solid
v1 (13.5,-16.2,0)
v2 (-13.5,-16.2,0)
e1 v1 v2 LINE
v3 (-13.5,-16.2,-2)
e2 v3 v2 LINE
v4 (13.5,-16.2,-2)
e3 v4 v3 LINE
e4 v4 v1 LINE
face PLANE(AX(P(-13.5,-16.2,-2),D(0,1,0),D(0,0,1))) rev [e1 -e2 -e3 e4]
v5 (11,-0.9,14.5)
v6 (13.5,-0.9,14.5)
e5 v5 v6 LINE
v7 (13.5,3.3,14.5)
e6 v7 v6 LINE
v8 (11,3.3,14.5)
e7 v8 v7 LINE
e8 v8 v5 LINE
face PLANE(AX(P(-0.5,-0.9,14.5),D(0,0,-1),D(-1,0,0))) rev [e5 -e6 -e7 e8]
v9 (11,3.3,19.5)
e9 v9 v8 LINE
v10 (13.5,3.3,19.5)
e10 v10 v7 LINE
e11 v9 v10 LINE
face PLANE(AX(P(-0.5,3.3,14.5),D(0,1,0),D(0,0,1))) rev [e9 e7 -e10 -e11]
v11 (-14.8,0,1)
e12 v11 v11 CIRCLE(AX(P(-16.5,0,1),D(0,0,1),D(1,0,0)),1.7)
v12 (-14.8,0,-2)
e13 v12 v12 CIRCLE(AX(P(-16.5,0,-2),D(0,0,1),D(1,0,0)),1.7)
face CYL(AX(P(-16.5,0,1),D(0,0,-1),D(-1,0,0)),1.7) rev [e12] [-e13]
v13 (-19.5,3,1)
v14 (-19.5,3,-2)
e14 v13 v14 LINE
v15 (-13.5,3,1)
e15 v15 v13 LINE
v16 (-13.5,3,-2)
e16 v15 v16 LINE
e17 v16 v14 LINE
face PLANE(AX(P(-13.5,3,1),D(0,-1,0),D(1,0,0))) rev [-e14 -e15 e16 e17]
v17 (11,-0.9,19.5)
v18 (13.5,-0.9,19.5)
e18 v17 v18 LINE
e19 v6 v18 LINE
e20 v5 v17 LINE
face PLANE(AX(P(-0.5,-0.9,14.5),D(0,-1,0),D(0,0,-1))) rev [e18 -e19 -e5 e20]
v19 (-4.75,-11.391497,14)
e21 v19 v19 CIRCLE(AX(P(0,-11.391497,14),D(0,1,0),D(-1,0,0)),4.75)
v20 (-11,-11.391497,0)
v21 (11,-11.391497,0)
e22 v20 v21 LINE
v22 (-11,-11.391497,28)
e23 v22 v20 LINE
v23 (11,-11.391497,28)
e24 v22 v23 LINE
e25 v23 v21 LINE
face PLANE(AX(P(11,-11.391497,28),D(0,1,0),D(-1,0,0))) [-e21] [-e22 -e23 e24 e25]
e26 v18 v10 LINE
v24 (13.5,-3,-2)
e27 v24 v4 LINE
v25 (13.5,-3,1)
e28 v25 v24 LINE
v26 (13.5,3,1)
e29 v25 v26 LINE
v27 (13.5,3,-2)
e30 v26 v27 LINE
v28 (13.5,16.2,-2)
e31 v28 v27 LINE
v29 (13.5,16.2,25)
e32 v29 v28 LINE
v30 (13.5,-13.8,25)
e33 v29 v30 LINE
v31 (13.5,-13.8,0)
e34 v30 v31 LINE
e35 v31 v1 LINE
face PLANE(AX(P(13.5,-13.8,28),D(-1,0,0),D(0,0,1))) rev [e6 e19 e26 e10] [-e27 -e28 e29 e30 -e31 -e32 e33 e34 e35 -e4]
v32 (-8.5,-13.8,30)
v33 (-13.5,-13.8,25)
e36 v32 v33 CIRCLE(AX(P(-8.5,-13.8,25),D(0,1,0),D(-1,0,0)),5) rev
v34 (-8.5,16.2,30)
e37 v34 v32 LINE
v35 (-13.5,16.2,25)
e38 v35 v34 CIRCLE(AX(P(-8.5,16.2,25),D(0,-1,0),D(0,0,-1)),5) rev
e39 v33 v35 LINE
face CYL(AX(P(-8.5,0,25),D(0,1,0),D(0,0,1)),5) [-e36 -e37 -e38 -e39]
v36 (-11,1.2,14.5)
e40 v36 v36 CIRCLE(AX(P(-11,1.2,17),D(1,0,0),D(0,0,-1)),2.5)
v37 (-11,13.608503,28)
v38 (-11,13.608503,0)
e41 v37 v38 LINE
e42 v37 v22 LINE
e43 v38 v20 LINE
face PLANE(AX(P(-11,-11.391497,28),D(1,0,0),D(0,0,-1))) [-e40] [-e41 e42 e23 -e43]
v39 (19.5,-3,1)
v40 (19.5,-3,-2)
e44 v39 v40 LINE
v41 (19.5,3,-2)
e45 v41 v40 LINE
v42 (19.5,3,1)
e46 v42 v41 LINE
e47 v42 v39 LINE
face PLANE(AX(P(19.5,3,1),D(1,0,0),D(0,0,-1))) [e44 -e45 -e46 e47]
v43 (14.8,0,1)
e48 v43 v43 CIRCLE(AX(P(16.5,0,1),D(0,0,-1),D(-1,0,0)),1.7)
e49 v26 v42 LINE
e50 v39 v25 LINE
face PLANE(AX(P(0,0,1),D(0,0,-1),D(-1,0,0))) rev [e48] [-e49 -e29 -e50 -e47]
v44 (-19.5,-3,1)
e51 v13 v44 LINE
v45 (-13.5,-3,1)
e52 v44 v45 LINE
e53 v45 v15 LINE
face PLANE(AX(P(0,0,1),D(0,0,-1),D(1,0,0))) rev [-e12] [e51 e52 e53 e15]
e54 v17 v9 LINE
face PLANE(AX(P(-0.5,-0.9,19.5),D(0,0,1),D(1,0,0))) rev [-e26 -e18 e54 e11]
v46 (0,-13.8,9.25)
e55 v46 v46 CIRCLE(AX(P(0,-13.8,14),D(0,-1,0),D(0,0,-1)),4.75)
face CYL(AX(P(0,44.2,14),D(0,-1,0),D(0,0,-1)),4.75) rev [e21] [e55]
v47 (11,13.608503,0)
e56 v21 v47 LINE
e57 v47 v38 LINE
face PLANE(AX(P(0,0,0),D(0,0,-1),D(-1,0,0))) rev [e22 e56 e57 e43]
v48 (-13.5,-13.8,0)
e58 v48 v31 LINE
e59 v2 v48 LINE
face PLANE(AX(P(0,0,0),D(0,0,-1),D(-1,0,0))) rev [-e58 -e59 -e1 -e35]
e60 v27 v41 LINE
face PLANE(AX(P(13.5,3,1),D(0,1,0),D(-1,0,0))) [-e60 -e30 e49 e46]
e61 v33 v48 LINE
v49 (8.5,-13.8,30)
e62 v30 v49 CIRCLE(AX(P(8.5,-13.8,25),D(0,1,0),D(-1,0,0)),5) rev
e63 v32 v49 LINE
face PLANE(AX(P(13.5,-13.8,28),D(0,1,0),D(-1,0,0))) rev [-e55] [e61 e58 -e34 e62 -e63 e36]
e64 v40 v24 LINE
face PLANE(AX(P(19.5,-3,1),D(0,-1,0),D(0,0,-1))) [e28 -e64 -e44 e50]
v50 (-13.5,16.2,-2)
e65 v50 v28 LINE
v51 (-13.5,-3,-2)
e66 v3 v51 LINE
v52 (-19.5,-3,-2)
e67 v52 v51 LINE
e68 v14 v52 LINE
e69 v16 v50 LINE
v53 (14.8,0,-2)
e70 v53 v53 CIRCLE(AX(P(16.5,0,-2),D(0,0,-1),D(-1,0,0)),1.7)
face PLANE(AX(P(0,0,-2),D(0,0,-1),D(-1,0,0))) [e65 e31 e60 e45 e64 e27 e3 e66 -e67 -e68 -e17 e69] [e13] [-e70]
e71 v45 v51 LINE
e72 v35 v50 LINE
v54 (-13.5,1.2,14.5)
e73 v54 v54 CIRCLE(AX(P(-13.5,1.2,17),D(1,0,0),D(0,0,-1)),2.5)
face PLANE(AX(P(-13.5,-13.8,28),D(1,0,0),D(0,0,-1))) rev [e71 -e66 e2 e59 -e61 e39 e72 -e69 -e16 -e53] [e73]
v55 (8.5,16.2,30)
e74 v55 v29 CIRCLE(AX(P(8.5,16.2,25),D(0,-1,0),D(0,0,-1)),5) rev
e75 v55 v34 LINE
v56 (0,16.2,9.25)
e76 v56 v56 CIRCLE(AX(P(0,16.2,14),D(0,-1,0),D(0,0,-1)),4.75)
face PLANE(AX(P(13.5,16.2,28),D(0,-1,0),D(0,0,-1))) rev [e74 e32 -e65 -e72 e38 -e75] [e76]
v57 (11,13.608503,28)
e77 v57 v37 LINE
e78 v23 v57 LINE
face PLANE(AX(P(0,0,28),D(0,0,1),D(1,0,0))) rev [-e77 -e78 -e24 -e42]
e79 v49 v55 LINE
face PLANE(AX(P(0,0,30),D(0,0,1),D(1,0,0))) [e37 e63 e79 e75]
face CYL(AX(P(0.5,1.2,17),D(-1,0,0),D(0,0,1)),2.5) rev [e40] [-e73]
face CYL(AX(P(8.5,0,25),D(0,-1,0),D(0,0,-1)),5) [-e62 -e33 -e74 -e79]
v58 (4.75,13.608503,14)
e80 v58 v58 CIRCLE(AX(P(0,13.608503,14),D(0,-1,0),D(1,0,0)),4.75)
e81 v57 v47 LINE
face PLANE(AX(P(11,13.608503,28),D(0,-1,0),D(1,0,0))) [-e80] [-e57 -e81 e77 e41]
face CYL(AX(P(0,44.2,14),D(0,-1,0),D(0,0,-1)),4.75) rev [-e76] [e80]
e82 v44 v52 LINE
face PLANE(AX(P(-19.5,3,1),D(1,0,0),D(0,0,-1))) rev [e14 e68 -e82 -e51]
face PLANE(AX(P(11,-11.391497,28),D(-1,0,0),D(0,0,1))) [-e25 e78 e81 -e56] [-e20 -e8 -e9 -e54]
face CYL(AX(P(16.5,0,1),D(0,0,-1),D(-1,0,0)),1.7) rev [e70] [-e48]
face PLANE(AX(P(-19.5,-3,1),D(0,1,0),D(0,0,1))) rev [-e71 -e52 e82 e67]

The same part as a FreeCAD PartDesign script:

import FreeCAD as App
import Part
import Sketcher
from FreeCAD import Vector
Q = App.Units.Quantity


def edges_at(feature, points):
    """Names of the edges that pass closest to the given points."""
    edges = feature.Shape.Edges
    near = lambda p: min(range(len(edges)), key=lambda i: edges[i].distToShape(Part.Vertex(*p))[0])
    return sorted({f"Edge{near(p) + 1}" for p in points})


def add_polygon(sketch, points):
    """Adds a closed chain of lines whose ends are joined by coincident constraints."""
    first, n = sketch.GeometryCount, len(points)
    for a, b in zip(points, points[1:] + points[:1]):
        sketch.addGeometry(Part.LineSegment(App.Vector(*a, 0), App.Vector(*b, 0)), False)
    for i in range(n):
        sketch.addConstraint(Sketcher.Constraint("Coincident", first + i, 2, first + (i + 1) % n, 1))

doc = App.newDocument("Part")
params = doc.addObject("Spreadsheet::Sheet", "Params")
for row, (alias, value) in enumerate([
    ("sketch1_width", "27 mm"),
    ("sketch1_width2", "22 mm"),
    ("sketch1_height", "30 mm"),
    ("sketch1_height2", "25 mm"),
    ("pad1_length", "28 mm"),
    ("sketch2_diameter", "5 mm"),
    ("pocket1_length", "28 mm"),
    ("sketch3_height", "5 mm"),
    ("sketch3_width", "4.2 mm"),
    ("pocket2_length", "28 mm"),
    ("sketch4_diameter", "9.5 mm"),
    ("pocket3_length", "58 mm"),
    ("sketch5_width", "27 mm"),
    ("sketch5_height", "30 mm"),
    ("pad2_length", "2 mm"),
    ("sketch6_width", "27 mm"),
    ("sketch6_height", "32.4 mm"),
    ("pad3_length", "2 mm"),
    ("sketch7_diameter", "3.4 mm"),
    ("sketch7_width", "6 mm"),
    ("pad4_length", "3 mm"),
    ("fillet_radius", "5 mm"),
], start=1):
    params.set(f"A{row}", alias)
    params.set(f"B{row}", "=" + value)
    params.setAlias(f"B{row}", alias)

body = doc.addObject("PartDesign::Body", "Body")

# Sketch on XY plane
sketch1 = body.newObject("Sketcher::SketchObject", "Sketch")
sketch1.AttachmentSupport = (doc.getObject("XY_Plane"), [""])
sketch1.MapMode = "FlatFace"
add_polygon(sketch1, [(-14, 16), (-14, -14), (14, -14), (14, 16)])  # lines 0-3
add_polygon(sketch1, [(11, -11), (-11, -11), (-11, 14), (11, 14)])  # lines 4-7
sketch1.addConstraint(Sketcher.Constraint("Vertical", 0))
sketch1.addConstraint(Sketcher.Constraint("Horizontal", 1))
sketch1.addConstraint(Sketcher.Constraint("Vertical", 2))
sketch1.addConstraint(Sketcher.Constraint("Horizontal", 3))
sketch1.addConstraint(Sketcher.Constraint("Horizontal", 4))
sketch1.addConstraint(Sketcher.Constraint("Vertical", 5))
sketch1.addConstraint(Sketcher.Constraint("Horizontal", 6))
sketch1.addConstraint(Sketcher.Constraint("Vertical", 7))
sketch1.addConstraint(Sketcher.Constraint("DistanceX", 1, 1, 1, 2, Q("27 mm")))
sketch1.addConstraint(Sketcher.Constraint("DistanceX", 4, 2, 4, 1, Q("22 mm")))
sketch1.addConstraint(Sketcher.Constraint("DistanceY", 0, 2, 0, 1, Q("30 mm")))
sketch1.addConstraint(Sketcher.Constraint("DistanceY", 5, 1, 5, 2, Q("25 mm")))
sketch1.addConstraint(Sketcher.Constraint("DistanceX", 4, 2, -1, 1, Q("11 mm")))
sketch1.addConstraint(Sketcher.Constraint("DistanceX", 0, 2, -1, 1, Q("13.5 mm")))
sketch1.addConstraint(Sketcher.Constraint("DistanceY", 0, 2, -1, 1, Q("13.8 mm")))
sketch1.addConstraint(Sketcher.Constraint("DistanceY", 4, 2, -1, 1, Q("11.391497 mm")))
sketch1.setExpression("Constraints[16]", "Params.sketch1_width")
sketch1.setExpression("Constraints[17]", "Params.sketch1_width2")
sketch1.setExpression("Constraints[18]", "Params.sketch1_height")
sketch1.setExpression("Constraints[19]", "Params.sketch1_height2")
pad1 = body.newObject("PartDesign::Pad", "Pad")
pad1.Profile = sketch1
pad1.setExpression("Length", "Params.pad1_length")

# Sketch on YZ plane
sketch2 = body.newObject("Sketcher::SketchObject", "Sketch001")
sketch2.AttachmentSupport = (doc.getObject("YZ_Plane"), [""])
sketch2.MapMode = "FlatFace"
sketch2.AttachmentOffset = App.Placement(Vector(0, 0, -13.5), App.Rotation())
sketch2.addGeometry(Part.Circle(Vector(1.2, 17, 0), Vector(0, 0, 1), 2.5), False)
sketch2.addConstraint(Sketcher.Constraint("Diameter", 0, Q("5 mm")))
sketch2.addConstraint(Sketcher.Constraint("DistanceY", -1, 1, 0, 3, Q("17 mm")))
sketch2.addConstraint(Sketcher.Constraint("DistanceX", -1, 1, 0, 3, Q("1.2 mm")))
sketch2.setExpression("Constraints[0]", "Params.sketch2_diameter")
pocket1 = body.newObject("PartDesign::Pocket", "Pocket")
pocket1.Profile = sketch2
pocket1.setExpression("Length", "Params.pocket1_length")
pocket1.Midplane = True

# Sketch on YZ plane
sketch3 = body.newObject("Sketcher::SketchObject", "Sketch002")
sketch3.AttachmentSupport = (doc.getObject("YZ_Plane"), [""])
sketch3.MapMode = "FlatFace"
sketch3.AttachmentOffset = App.Placement(Vector(0, 0, 13.5), App.Rotation())
add_polygon(sketch3, [(3.3, 19.5), (-0.9, 19.5), (-0.9, 14.5), (3.3, 14.5)])  # lines 0-3
sketch3.addConstraint(Sketcher.Constraint("Horizontal", 0))
sketch3.addConstraint(Sketcher.Constraint("Vertical", 1))
sketch3.addConstraint(Sketcher.Constraint("Horizontal", 2))
sketch3.addConstraint(Sketcher.Constraint("Vertical", 3))
sketch3.addConstraint(Sketcher.Constraint("DistanceY", 1, 2, 1, 1, Q("5 mm")))
sketch3.addConstraint(Sketcher.Constraint("DistanceX", 0, 2, 0, 1, Q("4.2 mm")))
sketch3.addConstraint(Sketcher.Constraint("DistanceX", 0, 2, -1, 1, Q("0.9 mm")))
sketch3.addConstraint(Sketcher.Constraint("DistanceY", -1, 1, 0, 2, Q("19.5 mm")))
sketch3.setExpression("Constraints[8]", "Params.sketch3_height")
sketch3.setExpression("Constraints[9]", "Params.sketch3_width")
pocket2 = body.newObject("PartDesign::Pocket", "Pocket001")
pocket2.Profile = sketch3
pocket2.setExpression("Length", "Params.pocket2_length")
pocket2.Midplane = True

# Sketch on XZ plane
sketch4 = body.newObject("Sketcher::SketchObject", "Sketch003")
sketch4.AttachmentSupport = (doc.getObject("XZ_Plane"), [""])
sketch4.MapMode = "FlatFace"
sketch4.AttachmentOffset = App.Placement(Vector(0, 0, 13.8), App.Rotation())
sketch4.addGeometry(Part.Circle(Vector(0, 14, 0), Vector(0, 0, 1), 4.8), False)
sketch4.addConstraint(Sketcher.Constraint("PointOnObject", 0, 3, -2))
sketch4.addConstraint(Sketcher.Constraint("Diameter", 0, Q("9.5 mm")))
sketch4.addConstraint(Sketcher.Constraint("DistanceY", -1, 1, 0, 3, Q("14 mm")))
sketch4.setExpression("Constraints[1]", "Params.sketch4_diameter")
pocket3 = body.newObject("PartDesign::Pocket", "Pocket002")
pocket3.Profile = sketch4
pocket3.setExpression("Length", "Params.pocket3_length")

# Sketch on XY plane
sketch5 = body.newObject("Sketcher::SketchObject", "Sketch004")
sketch5.AttachmentSupport = (doc.getObject("XY_Plane"), [""])
sketch5.MapMode = "FlatFace"
sketch5.AttachmentOffset = App.Placement(Vector(0, 0, 28), App.Rotation())
add_polygon(sketch5, [(-14, 16), (-14, -14), (14, -14), (14, 16)])  # lines 0-3
sketch5.addConstraint(Sketcher.Constraint("Vertical", 0))
sketch5.addConstraint(Sketcher.Constraint("Horizontal", 1))
sketch5.addConstraint(Sketcher.Constraint("Vertical", 2))
sketch5.addConstraint(Sketcher.Constraint("Horizontal", 3))
sketch5.addConstraint(Sketcher.Constraint("DistanceX", 1, 1, 1, 2, Q("27 mm")))
sketch5.addConstraint(Sketcher.Constraint("DistanceY", 0, 2, 0, 1, Q("30 mm")))
sketch5.addConstraint(Sketcher.Constraint("DistanceX", 0, 2, -1, 1, Q("13.5 mm")))
sketch5.addConstraint(Sketcher.Constraint("DistanceY", 0, 2, -1, 1, Q("13.8 mm")))
sketch5.setExpression("Constraints[8]", "Params.sketch5_width")
sketch5.setExpression("Constraints[9]", "Params.sketch5_height")
pad2 = body.newObject("PartDesign::Pad", "Pad001")
pad2.Profile = sketch5
pad2.setExpression("Length", "Params.pad2_length")

# Sketch on XY plane
sketch6 = body.newObject("Sketcher::SketchObject", "Sketch005")
sketch6.AttachmentSupport = (doc.getObject("XY_Plane"), [""])
sketch6.MapMode = "FlatFace"
add_polygon(sketch6, [(14, 16), (14, -16), (-14, -16), (-14, 16)])  # lines 0-3
sketch6.addConstraint(Sketcher.Constraint("Vertical", 0))
sketch6.addConstraint(Sketcher.Constraint("Horizontal", 1))
sketch6.addConstraint(Sketcher.Constraint("Vertical", 2))
sketch6.addConstraint(Sketcher.Constraint("Horizontal", 3))
sketch6.addConstraint(Sketcher.Constraint("Symmetric", 0, 2, 2, 2, -1, 1))
sketch6.addConstraint(Sketcher.Constraint("DistanceX", 1, 2, 1, 1, Q("27 mm")))
sketch6.addConstraint(Sketcher.Constraint("DistanceY", 0, 2, 0, 1, Q("32.4 mm")))
sketch6.setExpression("Constraints[9]", "Params.sketch6_width")
sketch6.setExpression("Constraints[10]", "Params.sketch6_height")
pad3 = body.newObject("PartDesign::Pad", "Pad002")
pad3.Profile = sketch6
pad3.setExpression("Length", "Params.pad3_length")
pad3.Reversed = True

# Sketch on XY plane
sketch7 = body.newObject("Sketcher::SketchObject", "Sketch006")
sketch7.AttachmentSupport = (doc.getObject("XY_Plane"), [""])
sketch7.MapMode = "FlatFace"
sketch7.AttachmentOffset = App.Placement(Vector(0, 0, -2), App.Rotation())
add_polygon(sketch7, [(13.5, 3), (19.5, 3), (19.5, -3), (13.5, -3)])  # lines 0-3
sketch7.addGeometry(Part.Circle(Vector(16.5, 0, 0), Vector(0, 0, 1), 1.7), False)  # 4
sketch7.addConstraint(Sketcher.Constraint("Horizontal", 0))
sketch7.addConstraint(Sketcher.Constraint("Vertical", 1))
sketch7.addConstraint(Sketcher.Constraint("Horizontal", 2))
sketch7.addConstraint(Sketcher.Constraint("Vertical", 3))
sketch7.addConstraint(Sketcher.Constraint("PointOnObject", 4, 3, -1))
sketch7.addConstraint(Sketcher.Constraint("Equal", 2, 1))
sketch7.addConstraint(Sketcher.Constraint("Diameter", 4, Q("3.4 mm")))
sketch7.addConstraint(Sketcher.Constraint("DistanceX", 0, 1, 0, 2, Q("6 mm")))
sketch7.addConstraint(Sketcher.Constraint("DistanceY", -1, 1, 0, 2, Q("3 mm")))
sketch7.addConstraint(Sketcher.Constraint("DistanceX", 4, 3, 0, 2, Q("3 mm")))
sketch7.addConstraint(Sketcher.Constraint("DistanceX", -1, 1, 4, 3, Q("16.5 mm")))
sketch7.setExpression("Constraints[10]", "Params.sketch7_diameter")
sketch7.setExpression("Constraints[11]", "Params.sketch7_width")
pad4 = body.newObject("PartDesign::Pad", "Pad003")
pad4.Profile = sketch7
pad4.setExpression("Length", "Params.pad4_length")
doc.recompute()

mirrored = body.newObject("PartDesign::Mirrored", "Mirrored")
mirrored.Originals = [pad4]
mirrored.MirrorPlane = (doc.getObject("YZ_Plane"), [""])
body.Tip = mirrored
doc.recompute()

fillet = body.newObject("PartDesign::Fillet", "Fillet")
fillet.Base = (mirrored, edges_at(mirrored, [(-13.5, 1.2, 30), (13.5, 1.2, 30)]))
fillet.setExpression("Radius", "Params.fillet_radius")
doc.recompute()

mirrored2 = body.newObject("PartDesign::Mirrored", "Mirrored001")
mirrored2.Originals = [pad4]
mirrored2.MirrorPlane = (doc.getObject("YZ_Plane"), [""])
body.Tip = mirrored2

doc.recompute()
